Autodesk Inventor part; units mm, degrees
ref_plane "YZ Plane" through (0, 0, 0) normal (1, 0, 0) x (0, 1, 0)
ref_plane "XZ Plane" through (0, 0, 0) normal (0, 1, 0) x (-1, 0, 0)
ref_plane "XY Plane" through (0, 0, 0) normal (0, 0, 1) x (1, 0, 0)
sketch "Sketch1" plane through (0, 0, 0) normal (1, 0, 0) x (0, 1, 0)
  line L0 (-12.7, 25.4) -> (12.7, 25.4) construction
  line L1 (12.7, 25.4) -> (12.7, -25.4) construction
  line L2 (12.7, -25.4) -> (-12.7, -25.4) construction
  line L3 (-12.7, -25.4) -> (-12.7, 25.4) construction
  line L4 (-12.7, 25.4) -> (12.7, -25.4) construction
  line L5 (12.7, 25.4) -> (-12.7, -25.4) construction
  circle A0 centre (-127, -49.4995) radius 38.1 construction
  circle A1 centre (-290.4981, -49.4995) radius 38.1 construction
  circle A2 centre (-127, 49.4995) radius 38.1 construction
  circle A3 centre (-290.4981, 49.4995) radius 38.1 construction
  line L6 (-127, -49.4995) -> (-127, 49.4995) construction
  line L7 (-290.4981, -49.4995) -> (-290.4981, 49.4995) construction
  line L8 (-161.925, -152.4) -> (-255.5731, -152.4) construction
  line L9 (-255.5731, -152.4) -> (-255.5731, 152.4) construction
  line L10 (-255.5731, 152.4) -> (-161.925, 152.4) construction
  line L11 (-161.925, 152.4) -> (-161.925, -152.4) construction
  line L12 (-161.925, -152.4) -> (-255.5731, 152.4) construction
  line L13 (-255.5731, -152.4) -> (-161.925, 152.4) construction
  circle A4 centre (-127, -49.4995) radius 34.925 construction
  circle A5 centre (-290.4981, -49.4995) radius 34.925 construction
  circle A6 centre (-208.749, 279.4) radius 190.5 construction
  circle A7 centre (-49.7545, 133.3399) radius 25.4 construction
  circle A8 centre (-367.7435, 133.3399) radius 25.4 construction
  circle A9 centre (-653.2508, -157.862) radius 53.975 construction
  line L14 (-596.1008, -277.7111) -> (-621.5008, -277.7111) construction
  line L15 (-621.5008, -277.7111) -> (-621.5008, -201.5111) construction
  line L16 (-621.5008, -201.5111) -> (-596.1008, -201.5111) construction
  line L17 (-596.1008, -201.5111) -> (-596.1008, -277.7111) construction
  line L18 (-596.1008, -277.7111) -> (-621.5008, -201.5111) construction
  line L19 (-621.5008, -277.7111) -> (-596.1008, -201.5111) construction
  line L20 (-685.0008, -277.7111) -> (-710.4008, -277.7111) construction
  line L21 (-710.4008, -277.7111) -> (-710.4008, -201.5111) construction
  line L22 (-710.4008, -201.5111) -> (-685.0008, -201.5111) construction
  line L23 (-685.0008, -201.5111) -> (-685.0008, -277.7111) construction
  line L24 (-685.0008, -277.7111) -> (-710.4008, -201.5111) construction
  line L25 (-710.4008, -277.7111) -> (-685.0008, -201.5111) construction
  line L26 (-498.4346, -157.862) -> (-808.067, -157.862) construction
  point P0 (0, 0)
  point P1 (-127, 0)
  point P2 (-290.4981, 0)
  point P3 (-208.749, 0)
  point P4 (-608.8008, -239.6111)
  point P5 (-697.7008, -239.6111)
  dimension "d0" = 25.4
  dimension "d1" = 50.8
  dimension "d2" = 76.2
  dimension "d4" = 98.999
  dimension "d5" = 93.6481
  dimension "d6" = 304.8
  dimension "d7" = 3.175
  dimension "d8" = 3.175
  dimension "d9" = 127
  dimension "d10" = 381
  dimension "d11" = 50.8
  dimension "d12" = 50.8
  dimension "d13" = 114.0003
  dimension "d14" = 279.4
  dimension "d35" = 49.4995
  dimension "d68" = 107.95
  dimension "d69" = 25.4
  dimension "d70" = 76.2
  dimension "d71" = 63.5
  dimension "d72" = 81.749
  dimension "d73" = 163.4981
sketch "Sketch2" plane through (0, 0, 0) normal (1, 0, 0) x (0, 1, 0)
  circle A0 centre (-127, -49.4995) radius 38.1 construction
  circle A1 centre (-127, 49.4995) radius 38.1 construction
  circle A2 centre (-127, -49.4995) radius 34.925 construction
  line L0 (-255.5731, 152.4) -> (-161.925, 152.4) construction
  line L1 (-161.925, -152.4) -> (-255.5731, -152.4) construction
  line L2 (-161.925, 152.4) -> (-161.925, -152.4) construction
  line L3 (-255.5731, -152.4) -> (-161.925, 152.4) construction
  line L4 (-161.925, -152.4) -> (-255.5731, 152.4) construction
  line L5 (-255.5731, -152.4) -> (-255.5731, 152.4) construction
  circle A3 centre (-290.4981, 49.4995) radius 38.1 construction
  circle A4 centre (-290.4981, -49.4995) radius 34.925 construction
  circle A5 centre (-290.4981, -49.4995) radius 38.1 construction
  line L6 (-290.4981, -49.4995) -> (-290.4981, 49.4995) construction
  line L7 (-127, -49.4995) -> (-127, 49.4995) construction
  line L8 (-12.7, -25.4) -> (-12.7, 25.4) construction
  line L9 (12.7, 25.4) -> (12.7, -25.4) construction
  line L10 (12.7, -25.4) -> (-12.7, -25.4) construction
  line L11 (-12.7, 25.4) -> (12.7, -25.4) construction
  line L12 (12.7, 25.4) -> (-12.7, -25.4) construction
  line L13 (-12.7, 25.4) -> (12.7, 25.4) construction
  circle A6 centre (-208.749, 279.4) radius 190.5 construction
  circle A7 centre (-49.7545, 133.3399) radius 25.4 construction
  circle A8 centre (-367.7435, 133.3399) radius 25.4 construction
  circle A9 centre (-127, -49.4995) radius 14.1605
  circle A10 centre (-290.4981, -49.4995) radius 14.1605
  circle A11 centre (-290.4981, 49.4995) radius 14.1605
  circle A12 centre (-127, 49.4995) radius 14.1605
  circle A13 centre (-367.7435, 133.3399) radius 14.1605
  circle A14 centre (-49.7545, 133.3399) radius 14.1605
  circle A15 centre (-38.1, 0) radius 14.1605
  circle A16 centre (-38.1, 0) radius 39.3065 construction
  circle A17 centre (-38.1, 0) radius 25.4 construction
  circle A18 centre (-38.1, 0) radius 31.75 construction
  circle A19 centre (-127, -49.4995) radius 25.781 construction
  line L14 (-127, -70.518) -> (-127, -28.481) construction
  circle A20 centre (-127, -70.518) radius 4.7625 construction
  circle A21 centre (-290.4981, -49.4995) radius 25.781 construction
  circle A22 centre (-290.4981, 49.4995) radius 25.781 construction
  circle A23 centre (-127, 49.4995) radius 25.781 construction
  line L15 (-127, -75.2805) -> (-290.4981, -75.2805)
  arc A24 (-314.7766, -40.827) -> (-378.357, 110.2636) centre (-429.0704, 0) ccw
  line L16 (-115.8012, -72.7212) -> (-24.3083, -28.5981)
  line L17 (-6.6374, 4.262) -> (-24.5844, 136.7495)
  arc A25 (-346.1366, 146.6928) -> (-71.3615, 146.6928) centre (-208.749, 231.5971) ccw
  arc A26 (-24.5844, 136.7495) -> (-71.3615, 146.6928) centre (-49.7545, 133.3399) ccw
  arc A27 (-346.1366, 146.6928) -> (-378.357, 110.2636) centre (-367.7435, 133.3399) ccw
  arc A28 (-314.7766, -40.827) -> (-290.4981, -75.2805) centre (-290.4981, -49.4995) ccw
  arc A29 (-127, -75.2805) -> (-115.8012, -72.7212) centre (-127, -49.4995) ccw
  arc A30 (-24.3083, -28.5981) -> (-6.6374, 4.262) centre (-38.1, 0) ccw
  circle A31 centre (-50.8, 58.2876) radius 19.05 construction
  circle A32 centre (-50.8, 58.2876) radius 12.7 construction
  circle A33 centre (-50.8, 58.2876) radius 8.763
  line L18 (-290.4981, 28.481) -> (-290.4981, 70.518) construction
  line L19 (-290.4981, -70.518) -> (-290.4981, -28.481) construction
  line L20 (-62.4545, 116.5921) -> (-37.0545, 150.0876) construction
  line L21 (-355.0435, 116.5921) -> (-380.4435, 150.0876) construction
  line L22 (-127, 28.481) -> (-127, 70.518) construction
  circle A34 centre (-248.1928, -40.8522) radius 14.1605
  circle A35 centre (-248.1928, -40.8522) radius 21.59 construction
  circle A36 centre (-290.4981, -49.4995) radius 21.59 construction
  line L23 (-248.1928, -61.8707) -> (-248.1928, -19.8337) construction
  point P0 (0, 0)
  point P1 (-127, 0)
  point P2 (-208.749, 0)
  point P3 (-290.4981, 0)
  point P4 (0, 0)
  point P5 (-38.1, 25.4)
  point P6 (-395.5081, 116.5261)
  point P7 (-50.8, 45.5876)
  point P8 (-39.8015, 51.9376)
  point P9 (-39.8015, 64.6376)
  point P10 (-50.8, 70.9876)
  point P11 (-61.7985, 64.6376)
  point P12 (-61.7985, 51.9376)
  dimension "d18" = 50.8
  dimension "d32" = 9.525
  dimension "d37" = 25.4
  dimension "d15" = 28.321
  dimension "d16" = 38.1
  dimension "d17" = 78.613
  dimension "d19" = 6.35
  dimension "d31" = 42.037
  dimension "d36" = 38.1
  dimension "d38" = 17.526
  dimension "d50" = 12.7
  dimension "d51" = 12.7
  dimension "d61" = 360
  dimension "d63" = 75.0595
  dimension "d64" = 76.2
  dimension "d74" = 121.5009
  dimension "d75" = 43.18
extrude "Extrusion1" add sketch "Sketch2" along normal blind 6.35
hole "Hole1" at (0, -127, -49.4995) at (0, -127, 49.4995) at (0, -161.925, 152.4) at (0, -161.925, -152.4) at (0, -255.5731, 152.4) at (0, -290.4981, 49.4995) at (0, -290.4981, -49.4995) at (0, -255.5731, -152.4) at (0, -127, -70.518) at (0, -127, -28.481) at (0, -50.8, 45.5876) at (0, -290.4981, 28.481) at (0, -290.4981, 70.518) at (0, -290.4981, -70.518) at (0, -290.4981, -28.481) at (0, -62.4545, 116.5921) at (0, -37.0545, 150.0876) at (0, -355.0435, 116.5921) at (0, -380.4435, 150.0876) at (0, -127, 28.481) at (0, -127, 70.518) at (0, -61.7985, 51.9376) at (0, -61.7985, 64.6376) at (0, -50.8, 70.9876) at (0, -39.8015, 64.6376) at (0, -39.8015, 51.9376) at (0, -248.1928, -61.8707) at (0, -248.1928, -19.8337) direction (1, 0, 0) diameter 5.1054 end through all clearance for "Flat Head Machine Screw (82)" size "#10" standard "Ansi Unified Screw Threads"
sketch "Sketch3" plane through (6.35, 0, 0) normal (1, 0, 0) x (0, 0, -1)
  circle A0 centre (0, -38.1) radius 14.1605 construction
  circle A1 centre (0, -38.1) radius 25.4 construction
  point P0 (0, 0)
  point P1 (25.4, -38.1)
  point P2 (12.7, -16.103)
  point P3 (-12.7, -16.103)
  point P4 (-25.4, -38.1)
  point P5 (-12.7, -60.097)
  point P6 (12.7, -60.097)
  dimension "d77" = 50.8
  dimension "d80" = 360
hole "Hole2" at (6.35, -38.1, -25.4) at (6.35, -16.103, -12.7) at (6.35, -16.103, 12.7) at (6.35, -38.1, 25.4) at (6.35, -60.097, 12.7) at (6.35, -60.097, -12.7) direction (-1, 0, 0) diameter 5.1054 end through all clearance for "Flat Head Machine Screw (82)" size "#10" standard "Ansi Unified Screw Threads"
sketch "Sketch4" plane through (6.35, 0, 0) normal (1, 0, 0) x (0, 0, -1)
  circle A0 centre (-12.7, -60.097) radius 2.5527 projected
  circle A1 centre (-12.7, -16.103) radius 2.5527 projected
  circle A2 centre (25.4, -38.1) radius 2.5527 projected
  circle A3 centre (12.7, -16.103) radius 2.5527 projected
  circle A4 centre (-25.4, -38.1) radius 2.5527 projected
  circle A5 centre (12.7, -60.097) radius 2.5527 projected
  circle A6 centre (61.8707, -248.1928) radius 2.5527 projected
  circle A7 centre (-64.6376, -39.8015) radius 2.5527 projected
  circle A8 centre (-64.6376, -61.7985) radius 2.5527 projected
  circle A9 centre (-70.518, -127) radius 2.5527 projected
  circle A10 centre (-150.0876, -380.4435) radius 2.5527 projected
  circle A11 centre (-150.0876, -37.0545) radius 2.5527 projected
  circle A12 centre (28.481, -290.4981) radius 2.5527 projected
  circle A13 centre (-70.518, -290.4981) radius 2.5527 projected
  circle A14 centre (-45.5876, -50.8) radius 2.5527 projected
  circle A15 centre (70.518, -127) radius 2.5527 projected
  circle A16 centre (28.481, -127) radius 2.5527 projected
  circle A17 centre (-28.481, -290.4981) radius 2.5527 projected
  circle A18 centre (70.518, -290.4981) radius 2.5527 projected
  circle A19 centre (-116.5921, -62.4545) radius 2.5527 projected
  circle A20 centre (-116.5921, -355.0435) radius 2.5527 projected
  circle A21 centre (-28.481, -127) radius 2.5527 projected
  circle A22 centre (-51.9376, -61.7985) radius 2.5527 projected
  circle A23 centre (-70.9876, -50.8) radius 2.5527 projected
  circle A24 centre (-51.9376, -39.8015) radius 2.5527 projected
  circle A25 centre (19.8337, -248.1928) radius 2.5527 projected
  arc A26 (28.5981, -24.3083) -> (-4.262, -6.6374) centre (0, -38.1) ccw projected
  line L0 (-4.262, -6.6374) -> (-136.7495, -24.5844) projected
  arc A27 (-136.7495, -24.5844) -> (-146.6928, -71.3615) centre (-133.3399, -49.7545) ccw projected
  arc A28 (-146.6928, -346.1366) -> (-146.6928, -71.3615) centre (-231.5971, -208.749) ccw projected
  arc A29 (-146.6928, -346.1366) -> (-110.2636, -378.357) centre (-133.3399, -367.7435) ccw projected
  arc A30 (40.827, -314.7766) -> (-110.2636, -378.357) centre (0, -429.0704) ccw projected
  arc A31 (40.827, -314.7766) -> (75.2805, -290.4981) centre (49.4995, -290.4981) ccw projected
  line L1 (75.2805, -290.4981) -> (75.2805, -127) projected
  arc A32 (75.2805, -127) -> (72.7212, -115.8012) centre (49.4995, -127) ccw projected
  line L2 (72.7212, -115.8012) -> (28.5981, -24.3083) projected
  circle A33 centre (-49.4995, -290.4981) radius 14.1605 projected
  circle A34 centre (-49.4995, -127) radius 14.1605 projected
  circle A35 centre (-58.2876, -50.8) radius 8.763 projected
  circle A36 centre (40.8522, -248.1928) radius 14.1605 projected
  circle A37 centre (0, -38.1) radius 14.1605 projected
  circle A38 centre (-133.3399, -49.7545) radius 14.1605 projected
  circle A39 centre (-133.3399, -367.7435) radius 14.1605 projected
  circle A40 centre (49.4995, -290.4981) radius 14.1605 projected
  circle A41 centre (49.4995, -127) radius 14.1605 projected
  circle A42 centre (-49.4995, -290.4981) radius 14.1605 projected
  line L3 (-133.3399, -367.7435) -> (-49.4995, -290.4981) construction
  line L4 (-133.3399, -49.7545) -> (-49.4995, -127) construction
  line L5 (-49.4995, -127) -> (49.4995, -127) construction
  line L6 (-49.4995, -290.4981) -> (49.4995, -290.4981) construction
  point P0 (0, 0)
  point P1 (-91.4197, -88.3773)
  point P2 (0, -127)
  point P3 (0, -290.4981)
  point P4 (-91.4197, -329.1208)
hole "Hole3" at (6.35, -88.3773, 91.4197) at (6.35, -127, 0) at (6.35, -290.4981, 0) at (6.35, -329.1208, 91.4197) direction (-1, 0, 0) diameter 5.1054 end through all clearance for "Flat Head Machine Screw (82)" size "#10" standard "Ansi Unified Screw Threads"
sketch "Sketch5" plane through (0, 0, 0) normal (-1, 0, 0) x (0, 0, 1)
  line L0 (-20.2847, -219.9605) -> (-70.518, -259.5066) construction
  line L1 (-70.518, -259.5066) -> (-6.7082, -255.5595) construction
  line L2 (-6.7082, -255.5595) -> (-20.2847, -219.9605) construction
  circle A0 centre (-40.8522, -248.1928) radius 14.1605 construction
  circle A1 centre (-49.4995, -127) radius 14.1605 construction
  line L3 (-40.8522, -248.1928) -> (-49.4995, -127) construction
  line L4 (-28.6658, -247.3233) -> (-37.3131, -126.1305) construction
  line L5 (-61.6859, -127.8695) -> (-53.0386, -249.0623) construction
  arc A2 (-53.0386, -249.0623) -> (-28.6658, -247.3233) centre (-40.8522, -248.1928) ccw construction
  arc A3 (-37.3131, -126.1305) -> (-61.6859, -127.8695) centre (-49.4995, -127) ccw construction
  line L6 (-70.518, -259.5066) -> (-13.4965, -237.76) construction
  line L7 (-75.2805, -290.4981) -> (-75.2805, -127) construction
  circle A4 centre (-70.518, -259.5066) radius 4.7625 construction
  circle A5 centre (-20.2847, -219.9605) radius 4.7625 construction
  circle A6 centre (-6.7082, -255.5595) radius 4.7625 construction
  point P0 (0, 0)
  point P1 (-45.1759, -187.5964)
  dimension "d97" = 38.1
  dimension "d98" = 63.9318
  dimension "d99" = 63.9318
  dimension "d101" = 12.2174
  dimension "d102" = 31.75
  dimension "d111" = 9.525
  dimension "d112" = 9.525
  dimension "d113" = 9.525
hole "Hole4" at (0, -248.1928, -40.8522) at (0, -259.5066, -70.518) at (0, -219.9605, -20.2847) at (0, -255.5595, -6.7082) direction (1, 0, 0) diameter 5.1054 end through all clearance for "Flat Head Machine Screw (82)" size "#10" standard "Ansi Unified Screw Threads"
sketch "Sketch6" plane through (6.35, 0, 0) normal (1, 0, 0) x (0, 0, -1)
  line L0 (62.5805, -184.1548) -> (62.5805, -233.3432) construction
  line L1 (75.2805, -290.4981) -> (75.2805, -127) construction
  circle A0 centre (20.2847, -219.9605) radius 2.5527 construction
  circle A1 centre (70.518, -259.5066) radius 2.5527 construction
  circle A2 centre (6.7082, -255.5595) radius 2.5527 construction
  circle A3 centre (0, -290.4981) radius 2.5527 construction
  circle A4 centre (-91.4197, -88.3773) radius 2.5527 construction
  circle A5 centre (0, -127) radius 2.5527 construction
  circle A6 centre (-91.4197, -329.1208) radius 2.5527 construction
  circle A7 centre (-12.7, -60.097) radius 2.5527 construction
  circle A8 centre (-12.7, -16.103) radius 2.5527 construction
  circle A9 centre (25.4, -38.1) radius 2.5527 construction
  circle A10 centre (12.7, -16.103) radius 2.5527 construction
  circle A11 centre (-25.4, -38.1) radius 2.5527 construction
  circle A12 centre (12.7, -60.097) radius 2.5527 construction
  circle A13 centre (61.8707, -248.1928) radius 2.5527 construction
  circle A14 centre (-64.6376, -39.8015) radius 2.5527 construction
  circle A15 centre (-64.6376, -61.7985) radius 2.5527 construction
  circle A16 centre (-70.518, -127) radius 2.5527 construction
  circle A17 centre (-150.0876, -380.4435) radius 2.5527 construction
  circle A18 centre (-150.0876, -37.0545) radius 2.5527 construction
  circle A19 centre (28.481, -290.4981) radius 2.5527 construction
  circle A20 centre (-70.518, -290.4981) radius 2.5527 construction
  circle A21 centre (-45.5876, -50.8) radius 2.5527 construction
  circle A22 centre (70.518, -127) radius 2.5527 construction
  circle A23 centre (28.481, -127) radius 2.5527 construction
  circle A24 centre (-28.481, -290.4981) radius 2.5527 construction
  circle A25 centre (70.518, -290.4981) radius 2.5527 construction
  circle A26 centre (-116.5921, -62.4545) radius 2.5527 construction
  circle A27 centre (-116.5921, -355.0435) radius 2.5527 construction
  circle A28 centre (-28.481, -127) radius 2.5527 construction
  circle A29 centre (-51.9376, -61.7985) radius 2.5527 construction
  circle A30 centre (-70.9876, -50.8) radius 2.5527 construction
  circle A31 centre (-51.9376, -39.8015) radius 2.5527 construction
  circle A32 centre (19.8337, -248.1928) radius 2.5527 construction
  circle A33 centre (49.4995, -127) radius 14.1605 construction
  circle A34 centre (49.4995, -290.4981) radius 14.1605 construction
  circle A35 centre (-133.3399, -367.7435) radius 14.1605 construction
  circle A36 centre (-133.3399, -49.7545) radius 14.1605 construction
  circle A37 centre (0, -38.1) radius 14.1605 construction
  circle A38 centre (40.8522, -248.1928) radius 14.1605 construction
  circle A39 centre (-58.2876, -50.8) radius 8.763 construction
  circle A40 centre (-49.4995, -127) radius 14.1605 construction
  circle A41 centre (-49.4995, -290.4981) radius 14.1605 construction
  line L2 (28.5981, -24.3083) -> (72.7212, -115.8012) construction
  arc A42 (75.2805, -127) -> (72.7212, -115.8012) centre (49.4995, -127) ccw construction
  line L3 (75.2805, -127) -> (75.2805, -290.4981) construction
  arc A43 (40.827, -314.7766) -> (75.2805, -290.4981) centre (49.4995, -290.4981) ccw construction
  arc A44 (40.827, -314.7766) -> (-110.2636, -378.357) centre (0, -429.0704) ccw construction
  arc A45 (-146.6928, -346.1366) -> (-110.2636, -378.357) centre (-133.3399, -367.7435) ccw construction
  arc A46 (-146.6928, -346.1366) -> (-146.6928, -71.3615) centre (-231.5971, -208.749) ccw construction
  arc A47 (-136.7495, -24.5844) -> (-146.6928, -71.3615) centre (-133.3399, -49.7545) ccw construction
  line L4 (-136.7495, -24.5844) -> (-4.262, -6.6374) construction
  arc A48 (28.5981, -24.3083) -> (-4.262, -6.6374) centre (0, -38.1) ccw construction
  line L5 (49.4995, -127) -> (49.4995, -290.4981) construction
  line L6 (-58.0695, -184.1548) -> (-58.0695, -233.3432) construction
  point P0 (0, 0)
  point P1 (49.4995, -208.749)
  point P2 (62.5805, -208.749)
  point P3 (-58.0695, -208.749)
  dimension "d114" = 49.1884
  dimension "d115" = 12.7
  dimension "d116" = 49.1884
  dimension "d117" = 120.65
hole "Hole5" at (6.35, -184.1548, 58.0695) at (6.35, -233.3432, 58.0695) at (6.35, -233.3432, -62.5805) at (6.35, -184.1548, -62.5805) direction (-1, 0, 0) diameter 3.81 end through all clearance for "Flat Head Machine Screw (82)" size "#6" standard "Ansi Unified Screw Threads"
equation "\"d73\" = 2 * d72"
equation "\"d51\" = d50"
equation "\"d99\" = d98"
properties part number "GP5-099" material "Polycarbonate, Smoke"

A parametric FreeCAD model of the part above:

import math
import FreeCAD as App
import Part
import Sketcher
Q = App.Units.Quantity

doc = App.newDocument("Part")
body = doc.addObject("PartDesign::Body", "Body")

sketch1 = body.newObject("Sketcher::SketchObject", "Sketch")
sketch1.AttachmentSupport = (doc.getObject("YZ_Plane"), [""])
sketch1.MapMode = "FlatFace"
sketch1.addGeometry([
    Part.LineSegment(App.Vector(-290, -75, 0), App.Vector(-127, -75, 0)),
    Part.ArcOfCircle(Part.Circle(App.Vector(-127, -49, 0), App.Vector(0, 0, 1), 26), math.radians(-90), math.radians(-64)),
    Part.LineSegment(App.Vector(-116, -73, 0), App.Vector(-24, -29, 0)),
    Part.ArcOfCircle(Part.Circle(App.Vector(-38, 0, 0), App.Vector(0, 0, 1), 32), math.radians(-64), math.radians(8)),
    Part.LineSegment(App.Vector(-7, 4, 0), App.Vector(-25, 137, 0)),
    Part.ArcOfCircle(Part.Circle(App.Vector(-50, 133, 0), App.Vector(0, 0, 1), 25), math.radians(8), math.radians(148)),
    Part.ArcOfCircle(Part.Circle(App.Vector(-209, 232, 0), App.Vector(0, 0, 1), 162), math.radians(-148), math.radians(-32)),
    Part.ArcOfCircle(Part.Circle(App.Vector(-368, 133, 0), App.Vector(0, 0, 1), 25), math.radians(32), math.radians(245)),
    Part.ArcOfCircle(Part.Circle(App.Vector(-429, 0, 0), App.Vector(0, 0, 1), 121), math.radians(-20), math.radians(65)),
    Part.ArcOfCircle(Part.Circle(App.Vector(-290, -49, 0), App.Vector(0, 0, 1), 26), math.radians(160), math.radians(270)),
    Part.Circle(App.Vector(-290, -49, 0), App.Vector(0, 0, 1), 14),
    Part.Circle(App.Vector(-248, -41, 0), App.Vector(0, 0, 1), 14),
    Part.Circle(App.Vector(-127, -49, 0), App.Vector(0, 0, 1), 14),
    Part.Circle(App.Vector(-38, 0, 0), App.Vector(0, 0, 1), 14),
    Part.Circle(App.Vector(-290, 49, 0), App.Vector(0, 0, 1), 14),
    Part.Circle(App.Vector(-368, 133, 0), App.Vector(0, 0, 1), 14),
    Part.Circle(App.Vector(-127, 49, 0), App.Vector(0, 0, 1), 14),
    Part.Circle(App.Vector(-51, 58, 0), App.Vector(0, 0, 1), 9),
    Part.Circle(App.Vector(-50, 133, 0), App.Vector(0, 0, 1), 14),
], False)
sketch1.addConstraint([
    Sketcher.Constraint("Tangent", 0, 2, 1, 1),
    Sketcher.Constraint("Tangent", 1, 2, 2, 1),
    Sketcher.Constraint("Tangent", 2, 2, 3, 1),
    Sketcher.Constraint("Tangent", 3, 2, 4, 1),
    Sketcher.Constraint("Tangent", 4, 2, 5, 1),
    Sketcher.Constraint("Tangent", 5, 2, 6, 2),
    Sketcher.Constraint("Tangent", 6, 1, 7, 1),
    Sketcher.Constraint("Tangent", 7, 2, 8, 2),
    Sketcher.Constraint("Tangent", 8, 1, 9, 1),
    Sketcher.Constraint("Tangent", 9, 2, 0, 1),
    Sketcher.Constraint("Horizontal", 0),
    Sketcher.Constraint("Coincident", 10, 3, 9, 3),
    Sketcher.Constraint("Coincident", 12, 3, 1, 3),
    Sketcher.Constraint("Coincident", 13, 3, 3, 3),
    Sketcher.Constraint("Coincident", 15, 3, 7, 3),
    Sketcher.Constraint("Coincident", 18, 3, 5, 3),
    Sketcher.Constraint("Equal", 5, 7),
    Sketcher.Constraint("Equal", 1, 9),
    Sketcher.Constraint("Equal", 10, 11),
    Sketcher.Constraint("Equal", 11, 12),
    Sketcher.Constraint("Equal", 12, 13),
    Sketcher.Constraint("Equal", 13, 14),
    Sketcher.Constraint("Equal", 14, 15),
    Sketcher.Constraint("Equal", 15, 16),
    Sketcher.Constraint("Equal", 16, 18),
    Sketcher.Constraint("Symmetric", 9, 3, 14, 3, -1),
    Sketcher.Constraint("Symmetric", 1, 3, 16, 3, -1),
    Sketcher.Constraint("PointOnObject", 3, 3, -1),
    Sketcher.Constraint("PointOnObject", 8, 3, -1),
    Sketcher.Constraint("Horizontal", 5, 3, 7, 3),
    Sketcher.Constraint("Radius", 5, Q("1 in")),
    Sketcher.Constraint("Diameter", 17, Q("0.69 in")),
    Sketcher.Constraint("Diameter", 10, Q("1.115 in")),
    Sketcher.Constraint("DistanceX", 17, 3, -1, 1, Q("2 in")),
    Sketcher.Constraint("DistanceX", 16, 3, 17, 3, Q("3 in")),
    Sketcher.Constraint("DistanceX", 3, 3, -1, 1, Q("1.5 in")),
    Sketcher.Constraint("Radius", 3, Q("1.25 in")),
    Sketcher.Constraint("Radius", 1, Q("1.015 in")),
    Sketcher.Constraint("Radius", 6, Q("6.3585 in")),
    Sketcher.Constraint("Radius", 8, Q("121.3669 mm")),
    Sketcher.Constraint("DistanceY", -1, 1, 6, 3, Q("9.118 in")),
    Sketcher.Constraint("DistanceY", 16, 3, 17, 3, Q("0.346 in")),
    Sketcher.Constraint("DistanceY", 3, 2, 17, 3, Q("2.127 in")),
    Sketcher.Constraint("DistanceX", 7, 2, 14, 3, Q("3.459 in")),
    Sketcher.Constraint("DistanceY", 11, 3, 8, 1, Q("0.001 in")),
    Sketcher.Constraint("DistanceX", 0, 1, 0, 2, Q("163.498 mm")),
    Sketcher.Constraint("DistanceX", 8, 1, 11, 3, Q("2.6214 in")),
])
pad1 = body.newObject("PartDesign::Pad", "Pad")
pad1.Profile = sketch1
pad1.Length = Q("0.25 in")

sketch2 = body.newObject("Sketcher::SketchObject", "Sketch001")
sketch2.AttachmentSupport = (doc.getObject("YZ_Plane"), [""])
sketch2.MapMode = "FlatFace"
sketch2.addGeometry([
    Part.Circle(App.Vector(-127, -49.5, 0), App.Vector(0, 0, 1), 2.6),
    Part.Circle(App.Vector(-127, 49.5, 0), App.Vector(0, 0, 1), 2.6),
    Part.Circle(App.Vector(-161.9, 152.4, 0), App.Vector(0, 0, 1), 2.6),
    Part.Circle(App.Vector(-161.9, -152.4, 0), App.Vector(0, 0, 1), 2.6),
    Part.Circle(App.Vector(-255.6, 152.4, 0), App.Vector(0, 0, 1), 2.6),
    Part.Circle(App.Vector(-290.5, 49.5, 0), App.Vector(0, 0, 1), 2.6),
    Part.Circle(App.Vector(-290.5, -49.5, 0), App.Vector(0, 0, 1), 2.6),
    Part.Circle(App.Vector(-255.6, -152.4, 0), App.Vector(0, 0, 1), 2.6),
    Part.Circle(App.Vector(-127, -70.5, 0), App.Vector(0, 0, 1), 2.6),
    Part.Circle(App.Vector(-127, -28.5, 0), App.Vector(0, 0, 1), 2.6),
    Part.Circle(App.Vector(-50.8, 45.6, 0), App.Vector(0, 0, 1), 2.6),
    Part.Circle(App.Vector(-290.5, 28.5, 0), App.Vector(0, 0, 1), 2.6),
    Part.Circle(App.Vector(-290.5, 70.5, 0), App.Vector(0, 0, 1), 2.6),
    Part.Circle(App.Vector(-290.5, -70.5, 0), App.Vector(0, 0, 1), 2.6),
    Part.Circle(App.Vector(-290.5, -28.5, 0), App.Vector(0, 0, 1), 2.6),
    Part.Circle(App.Vector(-62.5, 116.6, 0), App.Vector(0, 0, 1), 2.6),
    Part.Circle(App.Vector(-37.1, 150.1, 0), App.Vector(0, 0, 1), 2.6),
    Part.Circle(App.Vector(-355, 116.6, 0), App.Vector(0, 0, 1), 2.6),
    Part.Circle(App.Vector(-380.4, 150.1, 0), App.Vector(0, 0, 1), 2.6),
    Part.Circle(App.Vector(-127, 28.5, 0), App.Vector(0, 0, 1), 2.6),
    Part.Circle(App.Vector(-127, 70.5, 0), App.Vector(0, 0, 1), 2.6),
    Part.Circle(App.Vector(-61.8, 51.9, 0), App.Vector(0, 0, 1), 2.6),
    Part.Circle(App.Vector(-61.8, 64.6, 0), App.Vector(0, 0, 1), 2.6),
    Part.Circle(App.Vector(-50.8, 71, 0), App.Vector(0, 0, 1), 2.6),
    Part.Circle(App.Vector(-39.8, 64.6, 0), App.Vector(0, 0, 1), 2.6),
    Part.Circle(App.Vector(-39.8, 51.9, 0), App.Vector(0, 0, 1), 2.6),
    Part.Circle(App.Vector(-248.2, -61.9, 0), App.Vector(0, 0, 1), 2.6),
    Part.Circle(App.Vector(-248.2, -19.8, 0), App.Vector(0, 0, 1), 2.6),
], False)
sketch2.addConstraint([
    Sketcher.Constraint("Equal", 0, 1),
    Sketcher.Constraint("Equal", 1, 2),
    Sketcher.Constraint("Equal", 2, 3),
    Sketcher.Constraint("Equal", 3, 4),
    Sketcher.Constraint("Equal", 4, 5),
    Sketcher.Constraint("Equal", 5, 6),
    Sketcher.Constraint("Equal", 6, 7),
    Sketcher.Constraint("Equal", 7, 8),
    Sketcher.Constraint("Equal", 8, 9),
    Sketcher.Constraint("Equal", 9, 10),
    Sketcher.Constraint("Equal", 10, 11),
    Sketcher.Constraint("Equal", 11, 12),
    Sketcher.Constraint("Equal", 12, 13),
    Sketcher.Constraint("Equal", 13, 14),
    Sketcher.Constraint("Equal", 14, 15),
    Sketcher.Constraint("Equal", 15, 16),
    Sketcher.Constraint("Equal", 16, 17),
    Sketcher.Constraint("Equal", 17, 18),
    Sketcher.Constraint("Equal", 18, 19),
    Sketcher.Constraint("Equal", 19, 20),
    Sketcher.Constraint("Equal", 20, 21),
    Sketcher.Constraint("Equal", 21, 22),
    Sketcher.Constraint("Equal", 22, 23),
    Sketcher.Constraint("Equal", 23, 24),
    Sketcher.Constraint("Equal", 24, 25),
    Sketcher.Constraint("Equal", 25, 26),
    Sketcher.Constraint("Equal", 26, 27),
    Sketcher.Constraint("Symmetric", 0, 3, 1, 3, -1),
    Sketcher.Constraint("Symmetric", 2, 3, 3, 3, -1),
    Sketcher.Constraint("Symmetric", 5, 3, 6, 3, -1),
    Sketcher.Constraint("Symmetric", 4, 3, 7, 3, -1),
    Sketcher.Constraint("Symmetric", 12, 3, 13, 3, -1),
    Sketcher.Constraint("Symmetric", 11, 3, 14, 3, -1),
    Sketcher.Constraint("Symmetric", 9, 3, 19, 3, -1),
    Sketcher.Constraint("Symmetric", 8, 3, 20, 3, -1),
    Sketcher.Constraint("Horizontal", 2, 3, 4, 3),
    Sketcher.Constraint("Horizontal", 1, 3, 5, 3),
    Sketcher.Constraint("Horizontal", 8, 3, 13, 3),
    Sketcher.Constraint("Horizontal", 9, 3, 14, 3),
    Sketcher.Constraint("Horizontal", 15, 3, 17, 3),
    Sketcher.Constraint("Horizontal", 16, 3, 18, 3),
    Sketcher.Constraint("Horizontal", 22, 3, 24, 3),
    Sketcher.Constraint("Horizontal", 21, 3, 25, 3),
    Sketcher.Constraint("Vertical", 1, 3, 8, 3),
    Sketcher.Constraint("Vertical", 8, 3, 9, 3),
    Sketcher.Constraint("Vertical", 6, 3, 11, 3),
    Sketcher.Constraint("Vertical", 11, 3, 12, 3),
    Sketcher.Constraint("Vertical", 21, 3, 22, 3),
    Sketcher.Constraint("Vertical", 10, 3, 23, 3),
    Sketcher.Constraint("Vertical", 24, 3, 25, 3),
    Sketcher.Constraint("Vertical", 26, 3, 27, 3),
    Sketcher.Constraint("Diameter", 0, Q("0.201 in")),
    Sketcher.Constraint("DistanceX", 0, 3, -1, 1, Q("5 in")),
    Sketcher.Constraint("DistanceY", -1, 1, 2, 3, Q("6 in")),
    Sketcher.Constraint("DistanceX", 10, 3, -1, 1, Q("2 in")),
    Sketcher.Constraint("DistanceX", 15, 3, 16, 3, Q("1 in")),
    Sketcher.Constraint("DistanceX", 18, 3, 17, 3, Q("1 in")),
    Sketcher.Constraint("DistanceY", 10, 3, 23, 3, Q("1 in")),
    Sketcher.Constraint("DistanceY", 21, 3, 22, 3, Q("0.5 in")),
    Sketcher.Constraint("DistanceY", 10, 3, 21, 3, Q("0.25 in")),
    Sketcher.Constraint("DistanceX", 2, 3, -1, 1, Q("6.375 in")),
    Sketcher.Constraint("DistanceX", 21, 3, -1, 1, Q("2.433 in")),
    Sketcher.Constraint("DistanceX", 24, 3, -1, 1, Q("1.567 in")),
    Sketcher.Constraint("DistanceX", 5, 3, 4, 3, Q("1.375 in")),
    Sketcher.Constraint("DistanceY", 8, 3, 9, 3, Q("1.655 in")),
    Sketcher.Constraint("DistanceY", 10, 3, 1, 3, Q("0.154 in")),
    Sketcher.Constraint("DistanceY", 26, 3, 27, 3, Q("1.655 in")),
    Sketcher.Constraint("DistanceY", 0, 3, -1, 1, Q("1.9488 in")),
    Sketcher.Constraint("DistanceY", 8, 3, -1, 1, Q("2.7763 in")),
    Sketcher.Constraint("DistanceX", 17, 3, -1, 1, Q("13.9781 in")),
    Sketcher.Constraint("DistanceX", 4, 3, -1, 1, Q("255.573 mm")),
    Sketcher.Constraint("DistanceX", 15, 3, -1, 1, Q("62.4545 mm")),
    Sketcher.Constraint("DistanceY", -1, 1, 15, 3, Q("116.592 mm")),
    Sketcher.Constraint("DistanceY", -1, 1, 16, 3, Q("150.0876 mm")),
    Sketcher.Constraint("DistanceX", 26, 3, -1, 1, Q("248.1928 mm")),
    Sketcher.Constraint("DistanceY", 26, 3, -1, 1, Q("61.8707 mm")),
])
doc.recompute()
hole = body.newObject("PartDesign::Hole", "Hole")
hole.Profile = sketch2
hole.ThreadType = "None"
hole.Diameter = Q("0.201 in")
hole.DepthType = "ThroughAll"
hole.Reversed = True

sketch3 = body.newObject("Sketcher::SketchObject", "Sketch002")
sketch3.AttachmentSupport = (doc.getObject("YZ_Plane"), [""])
sketch3.MapMode = "FlatFace"
sketch3.AttachmentOffset = App.Placement(App.Vector(0, 0, 0.25 * 25.4), App.Rotation())
sketch3.addGeometry([
    Part.Circle(App.Vector(-38.1, -25.4, 0), App.Vector(0, 0, 1), 2.6),
    Part.Circle(App.Vector(-16.1, -12.7, 0), App.Vector(0, 0, 1), 2.6),
    Part.Circle(App.Vector(-16.1, 12.7, 0), App.Vector(0, 0, 1), 2.6),
    Part.Circle(App.Vector(-38.1, 25.4, 0), App.Vector(0, 0, 1), 2.6),
    Part.Circle(App.Vector(-60.1, 12.7, 0), App.Vector(0, 0, 1), 2.6),
    Part.Circle(App.Vector(-60.1, -12.7, 0), App.Vector(0, 0, 1), 2.6),
], False)
sketch3.addConstraint([
    Sketcher.Constraint("Equal", 0, 1),
    Sketcher.Constraint("Equal", 1, 2),
    Sketcher.Constraint("Equal", 2, 3),
    Sketcher.Constraint("Equal", 3, 4),
    Sketcher.Constraint("Equal", 4, 5),
    Sketcher.Constraint("Symmetric", 1, 3, 2, 3, -1),
    Sketcher.Constraint("Symmetric", 0, 3, 3, 3, -1),
    Sketcher.Constraint("Symmetric", 4, 3, 5, 3, -1),
    Sketcher.Constraint("Horizontal", 2, 3, 4, 3),
    Sketcher.Constraint("Diameter", 0, Q("0.201 in")),
    Sketcher.Constraint("DistanceY", 0, 3, -1, 1, Q("1 in")),
    Sketcher.Constraint("DistanceY", 1, 3, 2, 3, Q("1 in")),
    Sketcher.Constraint("DistanceX", 0, 3, -1, 1, Q("1.5 in")),
    Sketcher.Constraint("DistanceX", 1, 3, -1, 1, Q("16.103 mm")),
    Sketcher.Constraint("DistanceX", 4, 3, -1, 1, Q("60.097 mm")),
])
doc.recompute()
hole2 = body.newObject("PartDesign::Hole", "Hole001")
hole2.Profile = sketch3
hole2.ThreadType = "None"
hole2.Diameter = Q("0.201 in")
hole2.DepthType = "ThroughAll"

sketch4 = body.newObject("Sketcher::SketchObject", "Sketch003")
sketch4.AttachmentSupport = (doc.getObject("YZ_Plane"), [""])
sketch4.MapMode = "FlatFace"
sketch4.AttachmentOffset = App.Placement(App.Vector(0, 0, 0.25 * 25.4), App.Rotation())
sketch4.addGeometry([
    Part.Circle(App.Vector(-88.4, 91.4, 0), App.Vector(0, 0, 1), 2.6),
    Part.Circle(App.Vector(-127, 0, 0), App.Vector(0, 0, 1), 2.6),
    Part.Circle(App.Vector(-290.5, 0, 0), App.Vector(0, 0, 1), 2.6),
    Part.Circle(App.Vector(-329.1, 91.4, 0), App.Vector(0, 0, 1), 2.6),
], False)
sketch4.addConstraint([
    Sketcher.Constraint("Equal", 0, 1),
    Sketcher.Constraint("Equal", 1, 2),
    Sketcher.Constraint("Equal", 2, 3),
    Sketcher.Constraint("PointOnObject", 1, 3, -1),
    Sketcher.Constraint("PointOnObject", 2, 3, -1),
    Sketcher.Constraint("Horizontal", 0, 3, 3, 3),
    Sketcher.Constraint("Diameter", 0, Q("0.201 in")),
    Sketcher.Constraint("DistanceX", 1, 3, -1, 1, Q("5 in")),
    Sketcher.Constraint("DistanceY", -1, 1, 0, 3, Q("3.5992 in")),
    Sketcher.Constraint("DistanceX", 3, 3, -1, 1, Q("12.9575 in")),
    Sketcher.Constraint("DistanceX", 2, 3, 0, 3, Q("7.9575 in")),
    Sketcher.Constraint("DistanceX", 3, 3, 0, 3, Q("9.4781 in")),
])
doc.recompute()
hole3 = body.newObject("PartDesign::Hole", "Hole002")
hole3.Profile = sketch4
hole3.ThreadType = "None"
hole3.Diameter = Q("0.201 in")
hole3.DepthType = "ThroughAll"

sketch5 = body.newObject("Sketcher::SketchObject", "Sketch004")
sketch5.AttachmentSupport = (doc.getObject("YZ_Plane"), [""])
sketch5.MapMode = "FlatFace"
sketch5.addGeometry([
    Part.Circle(App.Vector(-248.2, -40.9, 0), App.Vector(0, 0, 1), 2.6),
    Part.Circle(App.Vector(-259.5, -70.5, 0), App.Vector(0, 0, 1), 2.6),
    Part.Circle(App.Vector(-220, -20.3, 0), App.Vector(0, 0, 1), 2.6),
    Part.Circle(App.Vector(-255.6, -6.7, 0), App.Vector(0, 0, 1), 2.6),
], False)
sketch5.addConstraint([
    Sketcher.Constraint("Equal", 0, 1),
    Sketcher.Constraint("Equal", 1, 2),
    Sketcher.Constraint("Equal", 2, 3),
    Sketcher.Constraint("Diameter", 0, Q("0.201 in")),
    Sketcher.Constraint("DistanceX", 1, 3, -1, 1, Q("10.2168 in")),
    Sketcher.Constraint("DistanceY", 1, 3, -1, 1, Q("2.7763 in")),
    Sketcher.Constraint("DistanceY", 2, 3, -1, 1, Q("0.7986 in")),
    Sketcher.Constraint("DistanceX", 3, 3, -1, 1, Q("10.0614 in")),
    Sketcher.Constraint("DistanceY", 3, 3, -1, 1, Q("0.2641 in")),
    Sketcher.Constraint("DistanceX", 0, 3, 2, 3, Q("1.1115 in")),
    Sketcher.Constraint("DistanceX", 0, 3, -1, 1, Q("248.1928 mm")),
    Sketcher.Constraint("DistanceY", 0, 3, -1, 1, Q("40.8522 mm")),
])
doc.recompute()
hole4 = body.newObject("PartDesign::Hole", "Hole003")
hole4.Profile = sketch5
hole4.ThreadType = "None"
hole4.Diameter = Q("0.201 in")
hole4.DepthType = "ThroughAll"
hole4.Reversed = True

sketch6 = body.newObject("Sketcher::SketchObject", "Sketch005")
sketch6.AttachmentSupport = (doc.getObject("YZ_Plane"), [""])
sketch6.MapMode = "FlatFace"
sketch6.AttachmentOffset = App.Placement(App.Vector(0, 0, 0.25 * 25.4), App.Rotation())
sketch6.addGeometry([
    Part.Circle(App.Vector(-184.2, 58.1, 0), App.Vector(0, 0, 1), 1.9),
    Part.Circle(App.Vector(-233.3, 58.1, 0), App.Vector(0, 0, 1), 1.9),
    Part.Circle(App.Vector(-233.3, -62.6, 0), App.Vector(0, 0, 1), 1.9),
    Part.Circle(App.Vector(-184.2, -62.6, 0), App.Vector(0, 0, 1), 1.9),
], False)
sketch6.addConstraint([
    Sketcher.Constraint("Equal", 0, 1),
    Sketcher.Constraint("Equal", 1, 2),
    Sketcher.Constraint("Equal", 2, 3),
    Sketcher.Constraint("Horizontal", 0, 3, 1, 3),
    Sketcher.Constraint("Horizontal", 2, 3, 3, 3),
    Sketcher.Constraint("Vertical", 1, 3, 2, 3),
    Sketcher.Constraint("Vertical", 0, 3, 3, 3),
    Sketcher.Constraint("Diameter", 0, Q("0.15 in")),
    Sketcher.Constraint("DistanceY", 2, 3, 1, 3, Q("4.75 in")),
    Sketcher.Constraint("DistanceX", 0, 3, -1, 1, Q("7.2502 in")),
    Sketcher.Constraint("DistanceY", -1, 1, 0, 3, Q("2.2862 in")),
    Sketcher.Constraint("DistanceX", 1, 3, -1, 1, Q("233.3432 mm")),
])
doc.recompute()
hole5 = body.newObject("PartDesign::Hole", "Hole004")
hole5.Profile = sketch6
hole5.ThreadType = "None"
hole5.Diameter = Q("0.15 in")
hole5.DepthType = "ThroughAll"

doc.recompute()
